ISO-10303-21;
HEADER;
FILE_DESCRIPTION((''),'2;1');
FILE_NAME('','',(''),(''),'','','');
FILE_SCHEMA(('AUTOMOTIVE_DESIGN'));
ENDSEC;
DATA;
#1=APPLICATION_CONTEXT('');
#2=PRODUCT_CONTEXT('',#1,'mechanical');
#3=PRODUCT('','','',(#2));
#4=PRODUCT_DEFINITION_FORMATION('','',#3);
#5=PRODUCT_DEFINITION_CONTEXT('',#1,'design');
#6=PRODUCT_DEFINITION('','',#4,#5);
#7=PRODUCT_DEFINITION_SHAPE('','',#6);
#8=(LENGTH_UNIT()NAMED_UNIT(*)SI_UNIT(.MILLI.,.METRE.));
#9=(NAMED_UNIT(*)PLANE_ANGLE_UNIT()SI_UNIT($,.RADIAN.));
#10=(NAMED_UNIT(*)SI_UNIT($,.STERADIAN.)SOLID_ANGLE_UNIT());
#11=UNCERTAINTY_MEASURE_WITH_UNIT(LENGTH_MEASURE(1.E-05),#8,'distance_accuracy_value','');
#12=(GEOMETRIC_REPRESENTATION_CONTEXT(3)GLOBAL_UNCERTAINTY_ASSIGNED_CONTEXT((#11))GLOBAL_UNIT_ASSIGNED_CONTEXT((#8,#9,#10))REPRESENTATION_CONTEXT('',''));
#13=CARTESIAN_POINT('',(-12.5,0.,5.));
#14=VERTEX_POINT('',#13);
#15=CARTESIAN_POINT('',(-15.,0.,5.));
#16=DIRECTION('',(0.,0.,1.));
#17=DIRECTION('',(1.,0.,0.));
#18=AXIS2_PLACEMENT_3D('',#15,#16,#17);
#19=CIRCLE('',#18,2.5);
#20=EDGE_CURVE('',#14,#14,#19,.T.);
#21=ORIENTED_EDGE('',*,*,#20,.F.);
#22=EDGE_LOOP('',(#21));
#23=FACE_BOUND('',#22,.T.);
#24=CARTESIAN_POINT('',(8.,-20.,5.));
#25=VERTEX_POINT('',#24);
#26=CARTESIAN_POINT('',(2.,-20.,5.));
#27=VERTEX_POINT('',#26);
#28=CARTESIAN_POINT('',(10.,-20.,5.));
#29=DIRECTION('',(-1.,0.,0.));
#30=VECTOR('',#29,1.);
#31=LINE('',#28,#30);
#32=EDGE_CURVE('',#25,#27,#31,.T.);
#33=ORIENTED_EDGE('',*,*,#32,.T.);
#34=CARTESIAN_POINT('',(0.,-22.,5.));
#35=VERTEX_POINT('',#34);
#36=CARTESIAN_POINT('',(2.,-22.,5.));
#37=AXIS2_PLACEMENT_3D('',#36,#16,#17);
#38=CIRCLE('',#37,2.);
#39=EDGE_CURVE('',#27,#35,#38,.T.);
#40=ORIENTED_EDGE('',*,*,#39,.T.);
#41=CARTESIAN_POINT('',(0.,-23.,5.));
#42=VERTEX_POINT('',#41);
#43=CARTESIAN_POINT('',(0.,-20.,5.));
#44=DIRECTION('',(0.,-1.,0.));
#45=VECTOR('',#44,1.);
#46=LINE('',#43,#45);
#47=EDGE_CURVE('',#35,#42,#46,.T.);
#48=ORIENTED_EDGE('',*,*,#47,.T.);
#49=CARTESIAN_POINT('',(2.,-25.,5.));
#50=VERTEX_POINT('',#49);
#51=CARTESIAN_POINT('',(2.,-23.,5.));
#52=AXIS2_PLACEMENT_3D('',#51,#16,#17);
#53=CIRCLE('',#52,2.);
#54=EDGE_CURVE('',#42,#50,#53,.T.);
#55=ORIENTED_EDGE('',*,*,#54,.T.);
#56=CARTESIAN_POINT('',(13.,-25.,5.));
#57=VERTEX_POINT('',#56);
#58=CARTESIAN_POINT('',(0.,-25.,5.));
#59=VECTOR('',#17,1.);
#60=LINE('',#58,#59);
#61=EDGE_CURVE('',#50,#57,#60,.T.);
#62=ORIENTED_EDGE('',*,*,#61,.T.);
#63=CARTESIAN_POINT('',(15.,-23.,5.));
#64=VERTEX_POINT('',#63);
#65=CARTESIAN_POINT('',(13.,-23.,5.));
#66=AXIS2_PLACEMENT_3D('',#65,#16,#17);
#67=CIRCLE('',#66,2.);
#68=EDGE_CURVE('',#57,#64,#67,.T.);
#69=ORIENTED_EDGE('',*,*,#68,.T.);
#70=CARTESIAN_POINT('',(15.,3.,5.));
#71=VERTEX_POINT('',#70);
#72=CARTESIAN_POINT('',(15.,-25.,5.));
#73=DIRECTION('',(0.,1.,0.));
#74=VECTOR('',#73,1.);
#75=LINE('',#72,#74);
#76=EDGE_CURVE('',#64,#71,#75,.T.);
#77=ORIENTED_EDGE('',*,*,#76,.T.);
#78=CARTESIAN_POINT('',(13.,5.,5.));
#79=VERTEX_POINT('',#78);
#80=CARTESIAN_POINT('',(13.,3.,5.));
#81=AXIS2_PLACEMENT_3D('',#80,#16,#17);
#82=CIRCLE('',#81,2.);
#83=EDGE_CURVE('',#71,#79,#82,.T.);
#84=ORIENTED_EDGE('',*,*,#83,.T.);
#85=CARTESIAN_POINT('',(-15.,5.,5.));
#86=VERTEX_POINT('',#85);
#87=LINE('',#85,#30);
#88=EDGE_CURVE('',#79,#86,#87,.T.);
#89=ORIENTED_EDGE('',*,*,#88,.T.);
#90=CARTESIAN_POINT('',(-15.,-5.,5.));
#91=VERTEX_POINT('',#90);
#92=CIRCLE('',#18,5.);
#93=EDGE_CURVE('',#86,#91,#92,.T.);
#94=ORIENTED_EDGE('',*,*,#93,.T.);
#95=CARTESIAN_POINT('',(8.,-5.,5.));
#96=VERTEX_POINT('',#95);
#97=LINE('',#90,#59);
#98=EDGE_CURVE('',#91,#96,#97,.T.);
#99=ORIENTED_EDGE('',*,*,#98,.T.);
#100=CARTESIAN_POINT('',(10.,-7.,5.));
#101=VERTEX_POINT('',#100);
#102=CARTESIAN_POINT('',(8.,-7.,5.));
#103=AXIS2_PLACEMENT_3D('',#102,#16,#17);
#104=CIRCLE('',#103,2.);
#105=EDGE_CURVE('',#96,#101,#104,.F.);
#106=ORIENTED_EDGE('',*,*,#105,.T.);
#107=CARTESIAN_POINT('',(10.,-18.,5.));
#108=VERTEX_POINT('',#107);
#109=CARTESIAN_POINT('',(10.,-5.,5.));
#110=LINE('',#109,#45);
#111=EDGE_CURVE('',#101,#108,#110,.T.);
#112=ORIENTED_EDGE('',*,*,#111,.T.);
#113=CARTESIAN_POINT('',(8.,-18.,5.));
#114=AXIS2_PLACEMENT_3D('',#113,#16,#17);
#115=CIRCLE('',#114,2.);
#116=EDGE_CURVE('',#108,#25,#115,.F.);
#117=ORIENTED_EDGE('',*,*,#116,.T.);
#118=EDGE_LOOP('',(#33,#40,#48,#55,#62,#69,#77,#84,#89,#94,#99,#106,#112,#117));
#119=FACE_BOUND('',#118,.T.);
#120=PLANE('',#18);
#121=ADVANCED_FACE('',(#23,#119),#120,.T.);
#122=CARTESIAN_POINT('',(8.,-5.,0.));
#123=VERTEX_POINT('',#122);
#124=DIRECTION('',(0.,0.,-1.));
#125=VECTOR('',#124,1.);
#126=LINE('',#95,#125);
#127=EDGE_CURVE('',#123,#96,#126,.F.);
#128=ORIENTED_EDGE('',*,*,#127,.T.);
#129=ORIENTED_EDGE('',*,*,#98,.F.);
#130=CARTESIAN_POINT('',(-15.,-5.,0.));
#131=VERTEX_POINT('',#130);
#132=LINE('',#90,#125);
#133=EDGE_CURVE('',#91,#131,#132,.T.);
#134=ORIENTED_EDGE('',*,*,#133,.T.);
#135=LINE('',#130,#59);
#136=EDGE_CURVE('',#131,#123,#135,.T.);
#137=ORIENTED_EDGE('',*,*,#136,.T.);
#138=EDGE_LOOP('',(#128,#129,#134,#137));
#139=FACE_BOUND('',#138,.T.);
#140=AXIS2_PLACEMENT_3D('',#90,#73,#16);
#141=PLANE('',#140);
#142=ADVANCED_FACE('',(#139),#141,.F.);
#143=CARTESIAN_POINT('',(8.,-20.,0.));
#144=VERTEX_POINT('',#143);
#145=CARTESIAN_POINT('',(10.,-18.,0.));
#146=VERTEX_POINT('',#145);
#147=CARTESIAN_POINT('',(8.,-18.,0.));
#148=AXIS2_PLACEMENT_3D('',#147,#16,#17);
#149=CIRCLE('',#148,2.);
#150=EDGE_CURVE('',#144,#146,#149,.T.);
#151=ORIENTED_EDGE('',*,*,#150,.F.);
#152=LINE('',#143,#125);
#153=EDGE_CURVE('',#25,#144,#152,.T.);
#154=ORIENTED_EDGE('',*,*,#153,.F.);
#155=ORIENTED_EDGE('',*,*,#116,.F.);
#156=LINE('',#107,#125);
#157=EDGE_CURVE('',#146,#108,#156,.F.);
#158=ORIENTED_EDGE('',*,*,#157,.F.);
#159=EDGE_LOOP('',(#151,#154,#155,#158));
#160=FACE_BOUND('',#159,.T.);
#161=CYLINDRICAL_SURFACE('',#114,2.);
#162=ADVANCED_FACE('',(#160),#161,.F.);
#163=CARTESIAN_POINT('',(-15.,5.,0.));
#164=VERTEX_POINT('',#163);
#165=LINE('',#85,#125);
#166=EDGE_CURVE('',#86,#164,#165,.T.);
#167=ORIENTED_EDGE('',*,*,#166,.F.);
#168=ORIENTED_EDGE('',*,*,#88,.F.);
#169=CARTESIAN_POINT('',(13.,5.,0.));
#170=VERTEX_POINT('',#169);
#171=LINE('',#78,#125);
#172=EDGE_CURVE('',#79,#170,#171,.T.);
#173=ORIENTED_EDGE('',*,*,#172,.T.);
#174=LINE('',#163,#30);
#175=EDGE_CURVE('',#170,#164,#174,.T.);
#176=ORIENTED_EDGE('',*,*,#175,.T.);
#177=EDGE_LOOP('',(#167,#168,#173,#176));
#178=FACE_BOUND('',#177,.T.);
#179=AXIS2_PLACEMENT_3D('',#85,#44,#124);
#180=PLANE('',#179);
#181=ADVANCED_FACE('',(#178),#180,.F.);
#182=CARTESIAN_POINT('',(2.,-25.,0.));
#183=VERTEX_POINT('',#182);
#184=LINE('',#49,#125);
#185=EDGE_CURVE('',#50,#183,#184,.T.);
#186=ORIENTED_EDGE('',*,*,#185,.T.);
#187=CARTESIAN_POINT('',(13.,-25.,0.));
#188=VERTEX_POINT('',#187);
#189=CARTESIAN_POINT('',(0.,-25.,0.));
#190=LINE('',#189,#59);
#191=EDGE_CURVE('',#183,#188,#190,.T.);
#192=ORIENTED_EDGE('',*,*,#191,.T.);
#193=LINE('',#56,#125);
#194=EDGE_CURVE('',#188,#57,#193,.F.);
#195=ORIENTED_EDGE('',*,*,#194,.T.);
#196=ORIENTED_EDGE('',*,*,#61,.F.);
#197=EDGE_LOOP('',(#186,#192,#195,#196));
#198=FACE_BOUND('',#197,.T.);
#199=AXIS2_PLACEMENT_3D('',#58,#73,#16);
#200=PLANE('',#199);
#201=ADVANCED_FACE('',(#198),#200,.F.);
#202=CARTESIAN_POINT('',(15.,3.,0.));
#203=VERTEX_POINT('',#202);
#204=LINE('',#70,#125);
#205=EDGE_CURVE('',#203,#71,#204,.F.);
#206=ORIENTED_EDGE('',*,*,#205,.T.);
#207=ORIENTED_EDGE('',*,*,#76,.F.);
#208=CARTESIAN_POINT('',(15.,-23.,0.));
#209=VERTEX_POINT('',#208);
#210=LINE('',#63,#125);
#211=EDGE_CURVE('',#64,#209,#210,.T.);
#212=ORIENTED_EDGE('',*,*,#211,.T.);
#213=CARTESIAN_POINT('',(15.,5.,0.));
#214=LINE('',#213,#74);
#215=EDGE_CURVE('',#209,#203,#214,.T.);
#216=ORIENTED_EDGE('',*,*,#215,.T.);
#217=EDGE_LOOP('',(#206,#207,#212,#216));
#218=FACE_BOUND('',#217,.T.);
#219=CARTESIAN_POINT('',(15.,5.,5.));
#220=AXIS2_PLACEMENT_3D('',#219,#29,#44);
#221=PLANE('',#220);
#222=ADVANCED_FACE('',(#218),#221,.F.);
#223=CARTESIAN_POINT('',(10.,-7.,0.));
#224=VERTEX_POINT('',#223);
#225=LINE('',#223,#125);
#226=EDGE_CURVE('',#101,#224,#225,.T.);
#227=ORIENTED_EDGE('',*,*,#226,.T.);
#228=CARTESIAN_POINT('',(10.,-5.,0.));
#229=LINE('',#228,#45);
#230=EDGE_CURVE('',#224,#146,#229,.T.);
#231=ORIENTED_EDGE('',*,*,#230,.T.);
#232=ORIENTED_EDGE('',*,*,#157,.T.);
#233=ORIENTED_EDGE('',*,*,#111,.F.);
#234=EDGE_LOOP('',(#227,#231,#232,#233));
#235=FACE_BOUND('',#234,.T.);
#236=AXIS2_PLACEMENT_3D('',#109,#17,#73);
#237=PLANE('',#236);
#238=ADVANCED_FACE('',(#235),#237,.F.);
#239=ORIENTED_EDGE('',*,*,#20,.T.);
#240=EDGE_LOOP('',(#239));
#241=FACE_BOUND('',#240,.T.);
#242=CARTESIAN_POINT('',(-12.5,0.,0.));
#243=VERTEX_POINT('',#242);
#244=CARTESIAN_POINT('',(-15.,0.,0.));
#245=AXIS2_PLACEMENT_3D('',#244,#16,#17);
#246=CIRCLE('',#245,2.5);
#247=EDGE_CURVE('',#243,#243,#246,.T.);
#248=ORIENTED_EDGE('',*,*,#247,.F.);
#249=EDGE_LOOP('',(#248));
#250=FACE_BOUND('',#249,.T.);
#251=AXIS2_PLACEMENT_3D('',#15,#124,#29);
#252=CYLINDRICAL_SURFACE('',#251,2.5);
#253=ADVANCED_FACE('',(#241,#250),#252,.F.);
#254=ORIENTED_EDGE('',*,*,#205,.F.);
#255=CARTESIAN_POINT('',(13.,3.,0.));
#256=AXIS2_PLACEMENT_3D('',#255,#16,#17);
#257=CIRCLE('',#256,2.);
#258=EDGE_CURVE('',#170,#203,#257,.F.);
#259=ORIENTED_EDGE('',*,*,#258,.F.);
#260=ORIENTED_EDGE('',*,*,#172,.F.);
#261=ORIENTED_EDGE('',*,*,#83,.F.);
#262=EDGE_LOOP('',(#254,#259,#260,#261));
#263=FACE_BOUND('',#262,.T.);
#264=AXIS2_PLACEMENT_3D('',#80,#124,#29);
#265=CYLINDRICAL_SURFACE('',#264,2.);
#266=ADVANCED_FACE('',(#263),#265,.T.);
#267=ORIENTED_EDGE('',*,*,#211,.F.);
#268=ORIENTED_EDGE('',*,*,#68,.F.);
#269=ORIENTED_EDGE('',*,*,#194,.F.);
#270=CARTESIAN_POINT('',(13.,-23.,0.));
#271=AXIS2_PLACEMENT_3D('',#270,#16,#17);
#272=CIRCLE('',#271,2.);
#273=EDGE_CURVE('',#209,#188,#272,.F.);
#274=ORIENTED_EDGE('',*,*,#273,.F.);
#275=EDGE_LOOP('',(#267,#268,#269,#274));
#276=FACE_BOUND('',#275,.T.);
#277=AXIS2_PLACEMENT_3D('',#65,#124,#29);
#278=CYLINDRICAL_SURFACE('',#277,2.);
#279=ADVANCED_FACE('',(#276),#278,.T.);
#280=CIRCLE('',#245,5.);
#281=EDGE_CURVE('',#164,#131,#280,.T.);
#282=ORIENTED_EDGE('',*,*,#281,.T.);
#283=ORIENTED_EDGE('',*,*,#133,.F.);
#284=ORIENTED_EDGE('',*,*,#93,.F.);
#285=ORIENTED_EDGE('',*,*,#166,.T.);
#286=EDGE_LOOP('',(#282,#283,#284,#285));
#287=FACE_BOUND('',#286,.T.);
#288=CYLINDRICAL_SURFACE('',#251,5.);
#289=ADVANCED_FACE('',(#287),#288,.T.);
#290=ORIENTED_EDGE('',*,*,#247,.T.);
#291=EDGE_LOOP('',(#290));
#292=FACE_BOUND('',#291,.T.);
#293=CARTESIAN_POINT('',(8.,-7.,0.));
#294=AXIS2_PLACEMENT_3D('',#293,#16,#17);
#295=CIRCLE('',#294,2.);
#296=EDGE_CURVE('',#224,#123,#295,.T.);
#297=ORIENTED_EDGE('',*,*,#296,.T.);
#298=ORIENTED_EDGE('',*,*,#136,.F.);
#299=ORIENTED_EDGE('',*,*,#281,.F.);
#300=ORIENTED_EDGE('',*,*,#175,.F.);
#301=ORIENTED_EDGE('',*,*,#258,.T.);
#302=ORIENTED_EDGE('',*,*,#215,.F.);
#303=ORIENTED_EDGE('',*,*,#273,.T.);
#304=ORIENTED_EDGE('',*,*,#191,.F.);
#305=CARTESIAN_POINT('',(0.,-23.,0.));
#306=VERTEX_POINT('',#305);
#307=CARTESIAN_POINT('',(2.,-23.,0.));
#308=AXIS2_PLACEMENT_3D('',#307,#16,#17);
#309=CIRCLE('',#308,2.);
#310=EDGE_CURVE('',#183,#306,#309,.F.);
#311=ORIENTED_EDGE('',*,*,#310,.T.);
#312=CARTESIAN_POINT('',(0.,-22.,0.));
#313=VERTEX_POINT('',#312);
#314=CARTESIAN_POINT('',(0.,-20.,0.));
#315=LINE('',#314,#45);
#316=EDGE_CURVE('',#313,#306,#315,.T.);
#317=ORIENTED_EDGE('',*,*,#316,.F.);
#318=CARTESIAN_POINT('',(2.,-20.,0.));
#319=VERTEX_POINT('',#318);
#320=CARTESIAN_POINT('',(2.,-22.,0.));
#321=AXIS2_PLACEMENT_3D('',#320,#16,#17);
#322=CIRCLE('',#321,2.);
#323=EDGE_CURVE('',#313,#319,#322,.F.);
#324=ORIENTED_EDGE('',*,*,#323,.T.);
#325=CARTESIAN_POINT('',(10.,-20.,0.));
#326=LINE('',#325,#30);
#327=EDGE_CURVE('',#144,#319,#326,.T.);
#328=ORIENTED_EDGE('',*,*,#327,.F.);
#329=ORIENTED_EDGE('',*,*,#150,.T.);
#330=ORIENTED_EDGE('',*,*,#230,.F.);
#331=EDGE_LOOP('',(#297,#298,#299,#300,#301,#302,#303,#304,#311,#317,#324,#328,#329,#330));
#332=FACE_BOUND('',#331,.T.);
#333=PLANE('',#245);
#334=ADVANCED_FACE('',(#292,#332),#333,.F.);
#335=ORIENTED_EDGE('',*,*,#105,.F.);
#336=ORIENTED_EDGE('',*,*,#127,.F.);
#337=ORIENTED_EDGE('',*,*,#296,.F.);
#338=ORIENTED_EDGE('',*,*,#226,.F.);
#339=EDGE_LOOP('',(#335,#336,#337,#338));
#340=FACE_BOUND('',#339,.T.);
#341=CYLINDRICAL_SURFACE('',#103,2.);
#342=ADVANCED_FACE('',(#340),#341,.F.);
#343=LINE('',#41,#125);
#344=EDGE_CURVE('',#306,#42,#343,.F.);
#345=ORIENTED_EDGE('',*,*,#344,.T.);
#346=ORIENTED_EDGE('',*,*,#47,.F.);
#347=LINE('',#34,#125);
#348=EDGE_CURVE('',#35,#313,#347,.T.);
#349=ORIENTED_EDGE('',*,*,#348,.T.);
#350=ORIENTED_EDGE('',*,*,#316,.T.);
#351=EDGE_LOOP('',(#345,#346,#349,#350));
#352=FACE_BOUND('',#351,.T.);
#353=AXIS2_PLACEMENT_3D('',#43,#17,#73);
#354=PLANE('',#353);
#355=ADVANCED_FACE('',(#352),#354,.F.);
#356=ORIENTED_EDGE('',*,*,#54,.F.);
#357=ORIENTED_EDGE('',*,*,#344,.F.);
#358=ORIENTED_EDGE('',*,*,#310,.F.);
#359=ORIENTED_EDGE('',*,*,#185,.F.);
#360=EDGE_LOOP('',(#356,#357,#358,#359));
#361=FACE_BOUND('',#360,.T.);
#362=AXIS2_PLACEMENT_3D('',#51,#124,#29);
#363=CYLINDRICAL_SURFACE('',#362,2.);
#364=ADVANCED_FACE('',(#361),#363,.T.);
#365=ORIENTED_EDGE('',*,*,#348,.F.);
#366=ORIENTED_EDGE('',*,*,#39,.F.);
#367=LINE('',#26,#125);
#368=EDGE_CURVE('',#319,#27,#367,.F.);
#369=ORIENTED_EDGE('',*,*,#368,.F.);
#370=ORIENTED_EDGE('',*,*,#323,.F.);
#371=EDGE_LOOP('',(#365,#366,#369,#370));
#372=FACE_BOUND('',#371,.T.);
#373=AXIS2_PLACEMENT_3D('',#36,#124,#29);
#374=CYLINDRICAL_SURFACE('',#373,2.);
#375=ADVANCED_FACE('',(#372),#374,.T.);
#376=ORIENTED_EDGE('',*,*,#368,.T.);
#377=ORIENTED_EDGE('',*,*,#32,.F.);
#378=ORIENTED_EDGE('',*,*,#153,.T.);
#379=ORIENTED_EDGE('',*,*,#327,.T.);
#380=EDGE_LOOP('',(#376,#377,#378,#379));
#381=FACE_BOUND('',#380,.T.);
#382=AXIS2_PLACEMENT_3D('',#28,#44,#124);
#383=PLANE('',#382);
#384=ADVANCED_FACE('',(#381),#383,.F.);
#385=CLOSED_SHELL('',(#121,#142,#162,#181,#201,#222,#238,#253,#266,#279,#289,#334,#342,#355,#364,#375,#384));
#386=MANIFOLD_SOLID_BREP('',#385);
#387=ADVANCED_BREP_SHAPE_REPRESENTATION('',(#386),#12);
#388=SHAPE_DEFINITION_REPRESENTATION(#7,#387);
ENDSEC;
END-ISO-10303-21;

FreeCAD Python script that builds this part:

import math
import FreeCAD as App
import Part
import Sketcher


def edges_at(feature, points):
    """Names of the edges that pass closest to the given points."""
    edges = feature.Shape.Edges
    near = lambda p: min(range(len(edges)), key=lambda i: edges[i].distToShape(Part.Vertex(*p))[0])
    return sorted({f"Edge{near(p) + 1}" for p in points})

doc = App.newDocument("Part")
params = doc.addObject("Spreadsheet::Sheet", "Params")
for row, (alias, value) in enumerate([
    ("sketch1_diameter", "5 mm"),
    ("sketch1_radius", "5 mm"),
    ("sketch1_width", "10 mm"),
    ("sketch1_width2", "15 mm"),
    ("pad1_length", "5 mm"),
    ("fillet_radius", "2 mm"),
], start=1):
    params.set(f"A{row}", alias)
    params.set(f"B{row}", "=" + value)
    params.setAlias(f"B{row}", alias)

body = doc.addObject("PartDesign::Body", "Body")

# Sketch on XY plane
sketch1 = body.newObject("Sketcher::SketchObject", "Sketch")
sketch1.AttachmentSupport = (doc.getObject("XY_Plane"), [""])
sketch1.MapMode = "FlatFace"
sketch1.addGeometry([
    Part.LineSegment(App.Vector(10, -5, 0), App.Vector(10, -20, 0)),  # 0
    Part.LineSegment(App.Vector(10, -20, 0), App.Vector(0, -20, 0)),  # 1
    Part.LineSegment(App.Vector(0, -20, 0), App.Vector(0, -25, 0)),  # 2
    Part.LineSegment(App.Vector(0, -25, 0), App.Vector(15, -25, 0)),  # 3
    Part.LineSegment(App.Vector(15, -25, 0), App.Vector(15, 5, 0)),  # 4
    Part.LineSegment(App.Vector(15, 5, 0), App.Vector(-15, 5, 0)),  # 5
    Part.ArcOfCircle(Part.Circle(App.Vector(-15, 0, 0), App.Vector(0, 0, 1), 5), math.radians(90), math.radians(270)),  # 6
    Part.LineSegment(App.Vector(-15, -5, 0), App.Vector(10, -5, 0)),  # 7
    Part.Circle(App.Vector(-15, 0, 0), App.Vector(0, 0, 1), 2.5),  # 8
], False)
sketch1.addConstraint([
    Sketcher.Constraint("Coincident", 0, 2, 1, 1),
    Sketcher.Constraint("Coincident", 1, 2, 2, 1),
    Sketcher.Constraint("Coincident", 2, 2, 3, 1),
    Sketcher.Constraint("Coincident", 3, 2, 4, 1),
    Sketcher.Constraint("Coincident", 4, 2, 5, 1),
    Sketcher.Constraint("Tangent", 5, 2, 6, 1),
    Sketcher.Constraint("Tangent", 6, 2, 7, 1),
    Sketcher.Constraint("Coincident", 7, 2, 0, 1),
    Sketcher.Constraint("Vertical", 0),
    Sketcher.Constraint("Horizontal", 1),
    Sketcher.Constraint("Vertical", 2),
    Sketcher.Constraint("Horizontal", 3),
    Sketcher.Constraint("Vertical", 4),
    Sketcher.Constraint("Horizontal", 5),
    Sketcher.Constraint("Horizontal", 7),
    Sketcher.Constraint("Coincident", 8, 3, 6, 3),
    Sketcher.Constraint("Symmetric", 4, 2, 6, 2, -1, 1),
    Sketcher.Constraint("PointOnObject", 1, 2, -2),
    Sketcher.Constraint("Equal", 3, 0),
    Sketcher.Constraint("Equal", 5, 4),
    Sketcher.Constraint("Diameter", 8, 5.0),
    Sketcher.Constraint("Radius", 6, 5.0),
    Sketcher.Constraint("DistanceX", 1, 2, 1, 1, 10.0),
    Sketcher.Constraint("DistanceX", 3, 1, 3, 2, 15.0),
])
sketch1.setExpression("Constraints[20]", "Params.sketch1_diameter")
sketch1.setExpression("Constraints[21]", "Params.sketch1_radius")
sketch1.setExpression("Constraints[22]", "Params.sketch1_width")
sketch1.setExpression("Constraints[23]", "Params.sketch1_width2")
pad1 = body.newObject("PartDesign::Pad", "Pad")
pad1.Profile = sketch1
pad1.setExpression("Length", "Params.pad1_length")
doc.recompute()

fillet = body.newObject("PartDesign::Fillet", "Fillet")
fillet.Base = (pad1, edges_at(pad1, [
    (15, -25, 2.5),
    (0, -25, 2.5),
    (0, -20, 2.5),
    (10, -20, 2.5),
    (10, -5, 2.5),
    (15, 5, 2.5),
]))
fillet.setExpression("Radius", "Params.fillet_radius")

doc.recompute()
